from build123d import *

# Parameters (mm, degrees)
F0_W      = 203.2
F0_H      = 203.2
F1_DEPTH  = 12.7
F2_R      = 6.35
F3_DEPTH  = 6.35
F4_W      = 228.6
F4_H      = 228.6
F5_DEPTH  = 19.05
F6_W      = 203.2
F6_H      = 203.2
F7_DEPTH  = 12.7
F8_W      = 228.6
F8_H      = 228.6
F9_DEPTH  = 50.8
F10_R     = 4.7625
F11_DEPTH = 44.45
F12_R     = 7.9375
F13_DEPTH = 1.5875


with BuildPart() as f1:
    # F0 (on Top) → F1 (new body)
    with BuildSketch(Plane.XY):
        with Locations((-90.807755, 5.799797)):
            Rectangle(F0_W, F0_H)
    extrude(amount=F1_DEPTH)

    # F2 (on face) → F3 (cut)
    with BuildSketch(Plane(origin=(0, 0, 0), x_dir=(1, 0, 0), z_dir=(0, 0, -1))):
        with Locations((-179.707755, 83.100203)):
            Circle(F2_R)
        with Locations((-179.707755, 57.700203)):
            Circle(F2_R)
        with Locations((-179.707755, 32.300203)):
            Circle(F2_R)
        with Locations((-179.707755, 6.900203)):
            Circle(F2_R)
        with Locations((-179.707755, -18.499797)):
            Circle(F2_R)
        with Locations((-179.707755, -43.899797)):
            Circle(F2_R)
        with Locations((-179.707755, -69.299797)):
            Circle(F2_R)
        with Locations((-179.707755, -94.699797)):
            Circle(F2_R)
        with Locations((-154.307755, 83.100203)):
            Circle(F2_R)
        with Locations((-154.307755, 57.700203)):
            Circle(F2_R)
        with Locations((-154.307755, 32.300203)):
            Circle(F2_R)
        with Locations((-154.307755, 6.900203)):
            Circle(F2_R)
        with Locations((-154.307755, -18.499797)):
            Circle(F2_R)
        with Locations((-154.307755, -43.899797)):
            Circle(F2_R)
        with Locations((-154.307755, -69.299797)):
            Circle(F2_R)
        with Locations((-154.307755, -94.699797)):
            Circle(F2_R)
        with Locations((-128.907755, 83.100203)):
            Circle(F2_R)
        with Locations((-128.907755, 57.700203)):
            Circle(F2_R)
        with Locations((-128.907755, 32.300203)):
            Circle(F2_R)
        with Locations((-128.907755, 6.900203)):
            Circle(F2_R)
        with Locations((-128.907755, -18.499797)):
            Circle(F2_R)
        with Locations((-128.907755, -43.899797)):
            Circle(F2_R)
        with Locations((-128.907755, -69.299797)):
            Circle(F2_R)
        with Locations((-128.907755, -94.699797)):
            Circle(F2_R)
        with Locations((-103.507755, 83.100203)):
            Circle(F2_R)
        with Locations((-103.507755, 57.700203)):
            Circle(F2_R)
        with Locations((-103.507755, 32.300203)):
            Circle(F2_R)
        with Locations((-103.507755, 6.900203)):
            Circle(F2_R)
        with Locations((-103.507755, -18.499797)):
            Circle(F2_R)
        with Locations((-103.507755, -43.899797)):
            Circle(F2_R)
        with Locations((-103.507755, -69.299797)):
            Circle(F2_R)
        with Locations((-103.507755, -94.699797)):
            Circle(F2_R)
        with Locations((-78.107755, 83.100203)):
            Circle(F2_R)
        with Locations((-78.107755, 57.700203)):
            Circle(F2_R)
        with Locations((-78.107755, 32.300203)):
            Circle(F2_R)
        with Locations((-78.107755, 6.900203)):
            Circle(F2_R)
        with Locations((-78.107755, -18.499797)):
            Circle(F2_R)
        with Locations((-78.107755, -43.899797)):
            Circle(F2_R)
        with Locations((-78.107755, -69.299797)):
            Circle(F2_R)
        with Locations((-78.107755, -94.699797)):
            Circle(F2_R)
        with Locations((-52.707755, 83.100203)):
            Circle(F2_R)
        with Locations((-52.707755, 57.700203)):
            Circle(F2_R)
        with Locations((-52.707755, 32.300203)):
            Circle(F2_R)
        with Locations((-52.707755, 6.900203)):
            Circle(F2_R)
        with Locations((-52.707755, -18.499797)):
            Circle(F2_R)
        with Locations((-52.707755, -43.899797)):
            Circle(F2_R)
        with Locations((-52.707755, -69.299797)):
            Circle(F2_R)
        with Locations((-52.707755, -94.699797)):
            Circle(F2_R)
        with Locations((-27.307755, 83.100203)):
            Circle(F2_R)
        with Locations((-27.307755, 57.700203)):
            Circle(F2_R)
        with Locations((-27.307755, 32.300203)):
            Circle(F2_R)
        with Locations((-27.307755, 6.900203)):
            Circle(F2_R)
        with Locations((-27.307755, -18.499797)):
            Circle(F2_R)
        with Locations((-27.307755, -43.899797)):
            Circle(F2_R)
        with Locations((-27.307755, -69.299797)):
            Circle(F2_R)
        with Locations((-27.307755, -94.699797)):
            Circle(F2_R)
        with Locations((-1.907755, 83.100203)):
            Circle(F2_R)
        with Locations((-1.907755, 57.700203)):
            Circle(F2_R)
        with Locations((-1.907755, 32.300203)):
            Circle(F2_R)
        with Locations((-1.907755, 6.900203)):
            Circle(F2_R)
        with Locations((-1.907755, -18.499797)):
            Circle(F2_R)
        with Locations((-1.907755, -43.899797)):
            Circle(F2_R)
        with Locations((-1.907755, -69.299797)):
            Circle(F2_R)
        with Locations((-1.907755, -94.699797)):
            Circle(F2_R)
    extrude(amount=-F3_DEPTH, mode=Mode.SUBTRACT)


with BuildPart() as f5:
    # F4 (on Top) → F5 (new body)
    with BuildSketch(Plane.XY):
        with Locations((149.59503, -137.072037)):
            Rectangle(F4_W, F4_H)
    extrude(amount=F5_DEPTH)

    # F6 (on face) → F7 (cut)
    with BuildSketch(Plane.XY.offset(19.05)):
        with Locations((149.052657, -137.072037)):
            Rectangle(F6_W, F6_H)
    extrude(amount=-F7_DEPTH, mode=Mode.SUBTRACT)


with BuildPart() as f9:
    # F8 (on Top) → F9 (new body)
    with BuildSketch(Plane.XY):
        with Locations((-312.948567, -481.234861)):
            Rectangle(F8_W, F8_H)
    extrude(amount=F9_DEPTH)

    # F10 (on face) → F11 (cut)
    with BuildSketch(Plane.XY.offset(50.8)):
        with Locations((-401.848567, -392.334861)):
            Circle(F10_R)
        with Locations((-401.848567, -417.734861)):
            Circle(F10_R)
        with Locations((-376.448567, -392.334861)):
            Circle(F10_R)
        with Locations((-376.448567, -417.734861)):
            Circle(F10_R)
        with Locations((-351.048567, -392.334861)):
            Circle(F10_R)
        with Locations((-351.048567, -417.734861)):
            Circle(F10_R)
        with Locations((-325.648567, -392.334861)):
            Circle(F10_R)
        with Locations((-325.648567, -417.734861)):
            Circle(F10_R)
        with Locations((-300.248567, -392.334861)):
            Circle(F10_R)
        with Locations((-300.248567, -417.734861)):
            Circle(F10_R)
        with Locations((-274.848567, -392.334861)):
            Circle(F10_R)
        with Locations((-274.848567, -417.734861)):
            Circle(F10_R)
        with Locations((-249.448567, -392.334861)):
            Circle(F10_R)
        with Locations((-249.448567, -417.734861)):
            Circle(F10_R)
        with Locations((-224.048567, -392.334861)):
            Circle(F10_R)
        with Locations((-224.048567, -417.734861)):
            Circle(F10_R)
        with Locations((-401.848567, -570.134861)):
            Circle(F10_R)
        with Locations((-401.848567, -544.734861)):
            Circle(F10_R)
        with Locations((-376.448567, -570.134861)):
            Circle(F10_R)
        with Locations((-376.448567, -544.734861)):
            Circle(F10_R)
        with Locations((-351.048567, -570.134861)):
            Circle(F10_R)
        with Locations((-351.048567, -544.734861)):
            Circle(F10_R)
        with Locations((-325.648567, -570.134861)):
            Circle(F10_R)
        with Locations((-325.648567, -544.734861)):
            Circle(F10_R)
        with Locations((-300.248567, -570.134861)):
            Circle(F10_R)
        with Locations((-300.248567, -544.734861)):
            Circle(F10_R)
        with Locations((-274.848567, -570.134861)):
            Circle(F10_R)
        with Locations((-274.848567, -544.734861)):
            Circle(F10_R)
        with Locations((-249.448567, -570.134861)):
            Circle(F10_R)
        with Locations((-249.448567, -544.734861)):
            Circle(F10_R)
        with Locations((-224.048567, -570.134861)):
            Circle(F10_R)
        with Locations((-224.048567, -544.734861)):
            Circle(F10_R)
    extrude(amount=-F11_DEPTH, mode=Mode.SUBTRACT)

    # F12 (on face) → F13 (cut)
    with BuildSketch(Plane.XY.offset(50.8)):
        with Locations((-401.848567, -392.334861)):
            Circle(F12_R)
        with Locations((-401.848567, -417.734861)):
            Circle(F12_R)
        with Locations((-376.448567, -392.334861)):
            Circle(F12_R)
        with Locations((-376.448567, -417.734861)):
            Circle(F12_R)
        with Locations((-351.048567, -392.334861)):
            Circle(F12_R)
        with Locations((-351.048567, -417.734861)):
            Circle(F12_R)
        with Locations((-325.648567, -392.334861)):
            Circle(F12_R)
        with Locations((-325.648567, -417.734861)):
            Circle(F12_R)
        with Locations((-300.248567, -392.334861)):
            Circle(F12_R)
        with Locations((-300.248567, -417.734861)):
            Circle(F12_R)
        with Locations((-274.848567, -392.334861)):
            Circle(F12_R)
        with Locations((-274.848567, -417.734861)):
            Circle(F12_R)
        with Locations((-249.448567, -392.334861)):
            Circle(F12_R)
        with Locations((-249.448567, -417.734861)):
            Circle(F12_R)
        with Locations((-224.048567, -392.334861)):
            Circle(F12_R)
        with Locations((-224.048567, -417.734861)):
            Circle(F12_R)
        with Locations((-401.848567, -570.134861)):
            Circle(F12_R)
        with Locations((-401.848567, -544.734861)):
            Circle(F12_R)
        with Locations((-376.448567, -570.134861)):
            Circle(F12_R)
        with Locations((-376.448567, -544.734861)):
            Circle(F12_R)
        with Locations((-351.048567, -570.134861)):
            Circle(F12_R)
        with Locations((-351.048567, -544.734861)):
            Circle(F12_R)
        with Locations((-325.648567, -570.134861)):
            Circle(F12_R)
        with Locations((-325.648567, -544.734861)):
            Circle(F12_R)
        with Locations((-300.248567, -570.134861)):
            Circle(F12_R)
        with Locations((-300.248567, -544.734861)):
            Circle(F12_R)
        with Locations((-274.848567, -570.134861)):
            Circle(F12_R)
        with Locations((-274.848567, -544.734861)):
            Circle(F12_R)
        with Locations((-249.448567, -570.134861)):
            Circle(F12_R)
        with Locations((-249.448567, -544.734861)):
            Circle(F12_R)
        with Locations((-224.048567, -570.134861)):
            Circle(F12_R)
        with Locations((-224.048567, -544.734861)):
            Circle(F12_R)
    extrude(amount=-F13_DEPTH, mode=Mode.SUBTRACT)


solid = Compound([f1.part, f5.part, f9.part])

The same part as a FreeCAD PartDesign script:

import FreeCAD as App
import Part
import Sketcher
Q = App.Units.Quantity

doc = App.newDocument("Part")
body = doc.addObject("PartDesign::Body", "Body")

sketch1 = doc.addObject("Sketcher::SketchObject", "Sketch")
body.addObject(sketch1)
sketch1.AttachmentSupport = (doc.XY_Plane, [""])
sketch1.MapMode = "FlatFace"
sketch1.addGeometry([
    Part.LineSegment(App.Vector(-192.407755, 107.399797, 0), App.Vector(-192.407755, -95.800203, 0)),
    Part.LineSegment(App.Vector(-192.407755, -95.800203, 0), App.Vector(10.792245, -95.800203, 0)),
    Part.LineSegment(App.Vector(10.792245, -95.800203, 0), App.Vector(10.792245, 107.399797, 0)),
    Part.LineSegment(App.Vector(10.792245, 107.399797, 0), App.Vector(-192.407755, 107.399797, 0)),
], False)
sketch1.addConstraint([
    Sketcher.Constraint("Coincident", 0, 2, 1, 1),
    Sketcher.Constraint("Coincident", 1, 2, 2, 1),
    Sketcher.Constraint("Coincident", 2, 2, 3, 1),
    Sketcher.Constraint("Coincident", 3, 2, 0, 1),
    Sketcher.Constraint("Vertical", 0),
    Sketcher.Constraint("Horizontal", 1),
    Sketcher.Constraint("Vertical", 2),
    Sketcher.Constraint("Horizontal", 3),
    Sketcher.Constraint("Equal", 3, 0),
    Sketcher.Constraint("DistanceX", 1, 1, 1, 2, Q("8 in")),
    Sketcher.Constraint("DistanceX", 0, 2, -1, 1, 192.407755),
    Sketcher.Constraint("DistanceY", 0, 2, -1, 1, 95.800203),
])
pad1 = doc.addObject("PartDesign::Pad", "Pad")
body.addObject(pad1)
pad1.Profile = sketch1
pad1.Length = Q("0.5 in")

sketch2 = doc.addObject("Sketcher::SketchObject", "Sketch001")
body.addObject(sketch2)
sketch2.AttachmentSupport = (doc.XY_Plane, [""])
sketch2.MapMode = "FlatFace"
sketch2.addGeometry([
    Part.Circle(App.Vector(-179.707755, -83.100203, 0), App.Vector(0, 0, 1), 6.35),
    Part.Circle(App.Vector(-179.707755, -57.700203, 0), App.Vector(0, 0, 1), 6.35),
    Part.Circle(App.Vector(-179.707755, -32.300203, 0), App.Vector(0, 0, 1), 6.35),
    Part.Circle(App.Vector(-179.707755, -6.900203, 0), App.Vector(0, 0, 1), 6.35),
    Part.Circle(App.Vector(-179.707755, 18.499797, 0), App.Vector(0, 0, 1), 6.35),
    Part.Circle(App.Vector(-179.707755, 43.899797, 0), App.Vector(0, 0, 1), 6.35),
    Part.Circle(App.Vector(-179.707755, 69.299797, 0), App.Vector(0, 0, 1), 6.35),
    Part.Circle(App.Vector(-179.707755, 94.699797, 0), App.Vector(0, 0, 1), 6.35),
    Part.Circle(App.Vector(-154.307755, -83.100203, 0), App.Vector(0, 0, 1), 6.35),
    Part.Circle(App.Vector(-154.307755, -57.700203, 0), App.Vector(0, 0, 1), 6.35),
    Part.Circle(App.Vector(-154.307755, -32.300203, 0), App.Vector(0, 0, 1), 6.35),
    Part.Circle(App.Vector(-154.307755, -6.900203, 0), App.Vector(0, 0, 1), 6.35),
    Part.Circle(App.Vector(-154.307755, 18.499797, 0), App.Vector(0, 0, 1), 6.35),
    Part.Circle(App.Vector(-154.307755, 43.899797, 0), App.Vector(0, 0, 1), 6.35),
    Part.Circle(App.Vector(-154.307755, 69.299797, 0), App.Vector(0, 0, 1), 6.35),
    Part.Circle(App.Vector(-154.307755, 94.699797, 0), App.Vector(0, 0, 1), 6.35),
    Part.Circle(App.Vector(-128.907755, -83.100203, 0), App.Vector(0, 0, 1), 6.35),
    Part.Circle(App.Vector(-128.907755, -57.700203, 0), App.Vector(0, 0, 1), 6.35),
    Part.Circle(App.Vector(-128.907755, -32.300203, 0), App.Vector(0, 0, 1), 6.35),
    Part.Circle(App.Vector(-128.907755, -6.900203, 0), App.Vector(0, 0, 1), 6.35),
    Part.Circle(App.Vector(-128.907755, 18.499797, 0), App.Vector(0, 0, 1), 6.35),
    Part.Circle(App.Vector(-128.907755, 43.899797, 0), App.Vector(0, 0, 1), 6.35),
    Part.Circle(App.Vector(-128.907755, 69.299797, 0), App.Vector(0, 0, 1), 6.35),
    Part.Circle(App.Vector(-128.907755, 94.699797, 0), App.Vector(0, 0, 1), 6.35),
    Part.Circle(App.Vector(-103.507755, -83.100203, 0), App.Vector(0, 0, 1), 6.35),
    Part.Circle(App.Vector(-103.507755, -57.700203, 0), App.Vector(0, 0, 1), 6.35),
    Part.Circle(App.Vector(-103.507755, -32.300203, 0), App.Vector(0, 0, 1), 6.35),
    Part.Circle(App.Vector(-103.507755, -6.900203, 0), App.Vector(0, 0, 1), 6.35),
    Part.Circle(App.Vector(-103.507755, 18.499797, 0), App.Vector(0, 0, 1), 6.35),
    Part.Circle(App.Vector(-103.507755, 43.899797, 0), App.Vector(0, 0, 1), 6.35),
    Part.Circle(App.Vector(-103.507755, 69.299797, 0), App.Vector(0, 0, 1), 6.35),
    Part.Circle(App.Vector(-103.507755, 94.699797, 0), App.Vector(0, 0, 1), 6.35),
    Part.Circle(App.Vector(-78.107755, -83.100203, 0), App.Vector(0, 0, 1), 6.35),
    Part.Circle(App.Vector(-78.107755, -57.700203, 0), App.Vector(0, 0, 1), 6.35),
    Part.Circle(App.Vector(-78.107755, -32.300203, 0), App.Vector(0, 0, 1), 6.35),
    Part.Circle(App.Vector(-78.107755, -6.900203, 0), App.Vector(0, 0, 1), 6.35),
    Part.Circle(App.Vector(-78.107755, 18.499797, 0), App.Vector(0, 0, 1), 6.35),
    Part.Circle(App.Vector(-78.107755, 43.899797, 0), App.Vector(0, 0, 1), 6.35),
    Part.Circle(App.Vector(-78.107755, 69.299797, 0), App.Vector(0, 0, 1), 6.35),
    Part.Circle(App.Vector(-78.107755, 94.699797, 0), App.Vector(0, 0, 1), 6.35),
    Part.Circle(App.Vector(-52.707755, -83.100203, 0), App.Vector(0, 0, 1), 6.35),
    Part.Circle(App.Vector(-52.707755, -57.700203, 0), App.Vector(0, 0, 1), 6.35),
    Part.Circle(App.Vector(-52.707755, -32.300203, 0), App.Vector(0, 0, 1), 6.35),
    Part.Circle(App.Vector(-52.707755, -6.900203, 0), App.Vector(0, 0, 1), 6.35),
    Part.Circle(App.Vector(-52.707755, 18.499797, 0), App.Vector(0, 0, 1), 6.35),
    Part.Circle(App.Vector(-52.707755, 43.899797, 0), App.Vector(0, 0, 1), 6.35),
    Part.Circle(App.Vector(-52.707755, 69.299797, 0), App.Vector(0, 0, 1), 6.35),
    Part.Circle(App.Vector(-52.707755, 94.699797, 0), App.Vector(0, 0, 1), 6.35),
    Part.Circle(App.Vector(-27.307755, -83.100203, 0), App.Vector(0, 0, 1), 6.35),
    Part.Circle(App.Vector(-27.307755, -57.700203, 0), App.Vector(0, 0, 1), 6.35),
    Part.Circle(App.Vector(-27.307755, -32.300203, 0), App.Vector(0, 0, 1), 6.35),
    Part.Circle(App.Vector(-27.307755, -6.900203, 0), App.Vector(0, 0, 1), 6.35),
    Part.Circle(App.Vector(-27.307755, 18.499797, 0), App.Vector(0, 0, 1), 6.35),
    Part.Circle(App.Vector(-27.307755, 43.899797, 0), App.Vector(0, 0, 1), 6.35),
    Part.Circle(App.Vector(-27.307755, 69.299797, 0), App.Vector(0, 0, 1), 6.35),
    Part.Circle(App.Vector(-27.307755, 94.699797, 0), App.Vector(0, 0, 1), 6.35),
    Part.Circle(App.Vector(-1.907755, -83.100203, 0), App.Vector(0, 0, 1), 6.35),
    Part.Circle(App.Vector(-1.907755, -57.700203, 0), App.Vector(0, 0, 1), 6.35),
    Part.Circle(App.Vector(-1.907755, -32.300203, 0), App.Vector(0, 0, 1), 6.35),
    Part.Circle(App.Vector(-1.907755, -6.900203, 0), App.Vector(0, 0, 1), 6.35),
    Part.Circle(App.Vector(-1.907755, 18.499797, 0), App.Vector(0, 0, 1), 6.35),
    Part.Circle(App.Vector(-1.907755, 43.899797, 0), App.Vector(0, 0, 1), 6.35),
    Part.Circle(App.Vector(-1.907755, 69.299797, 0), App.Vector(0, 0, 1), 6.35),
    Part.Circle(App.Vector(-1.907755, 94.699797, 0), App.Vector(0, 0, 1), 6.35),
], False)
sketch2.addConstraint([
    Sketcher.Constraint("Equal", 0, 1),
    Sketcher.Constraint("Equal", 1, 2),
    Sketcher.Constraint("Equal", 2, 3),
    Sketcher.Constraint("Equal", 3, 4),
    Sketcher.Constraint("Equal", 4, 5),
    Sketcher.Constraint("Equal", 5, 6),
    Sketcher.Constraint("Equal", 6, 7),
    Sketcher.Constraint("Equal", 7, 8),
    Sketcher.Constraint("Equal", 8, 9),
    Sketcher.Constraint("Equal", 9, 10),
    Sketcher.Constraint("Equal", 10, 11),
    Sketcher.Constraint("Equal", 11, 12),
    Sketcher.Constraint("Equal", 12, 13),
    Sketcher.Constraint("Equal", 13, 14),
    Sketcher.Constraint("Equal", 14, 15),
    Sketcher.Constraint("Equal", 15, 16),
    Sketcher.Constraint("Equal", 16, 17),
    Sketcher.Constraint("Equal", 17, 18),
    Sketcher.Constraint("Equal", 18, 19),
    Sketcher.Constraint("Equal", 19, 20),
    Sketcher.Constraint("Equal", 20, 21),
    Sketcher.Constraint("Equal", 21, 22),
    Sketcher.Constraint("Equal", 22, 23),
    Sketcher.Constraint("Equal", 23, 24),
    Sketcher.Constraint("Equal", 24, 25),
    Sketcher.Constraint("Equal", 25, 26),
    Sketcher.Constraint("Equal", 26, 27),
    Sketcher.Constraint("Equal", 27, 28),
    Sketcher.Constraint("Equal", 28, 29),
    Sketcher.Constraint("Equal", 29, 30),
    Sketcher.Constraint("Equal", 30, 31),
    Sketcher.Constraint("Equal", 31, 32),
    Sketcher.Constraint("Equal", 32, 33),
    Sketcher.Constraint("Equal", 33, 34),
    Sketcher.Constraint("Equal", 34, 35),
    Sketcher.Constraint("Equal", 35, 36),
    Sketcher.Constraint("Equal", 36, 37),
    Sketcher.Constraint("Equal", 37, 38),
    Sketcher.Constraint("Equal", 38, 39),
    Sketcher.Constraint("Equal", 39, 40),
    Sketcher.Constraint("Equal", 40, 41),
    Sketcher.Constraint("Equal", 41, 42),
    Sketcher.Constraint("Equal", 42, 43),
    Sketcher.Constraint("Equal", 43, 44),
    Sketcher.Constraint("Equal", 44, 45),
    Sketcher.Constraint("Equal", 45, 46),
    Sketcher.Constraint("Equal", 46, 47),
    Sketcher.Constraint("Equal", 47, 48),
    Sketcher.Constraint("Equal", 48, 49),
    Sketcher.Constraint("Equal", 49, 50),
    Sketcher.Constraint("Equal", 50, 51),
    Sketcher.Constraint("Equal", 51, 52),
    Sketcher.Constraint("Equal", 52, 53),
    Sketcher.Constraint("Equal", 53, 54),
    Sketcher.Constraint("Equal", 54, 55),
    Sketcher.Constraint("Equal", 55, 56),
    Sketcher.Constraint("Equal", 56, 57),
    Sketcher.Constraint("Equal", 57, 58),
    Sketcher.Constraint("Equal", 58, 59),
    Sketcher.Constraint("Equal", 59, 60),
    Sketcher.Constraint("Equal", 60, 61),
    Sketcher.Constraint("Equal", 61, 62),
    Sketcher.Constraint("Equal", 62, 63),
    Sketcher.Constraint("Horizontal", 0, 3, 8, 3),
    Sketcher.Constraint("Horizontal", 1, 3, 9, 3),
    Sketcher.Constraint("Horizontal", 2, 3, 10, 3),
    Sketcher.Constraint("Horizontal", 3, 3, 11, 3),
    Sketcher.Constraint("Horizontal", 4, 3, 12, 3),
    Sketcher.Constraint("Horizontal", 5, 3, 13, 3),
    Sketcher.Constraint("Horizontal", 6, 3, 14, 3),
    Sketcher.Constraint("Horizontal", 7, 3, 15, 3),
    Sketcher.Constraint("Horizontal", 8, 3, 16, 3),
    Sketcher.Constraint("Horizontal", 9, 3, 17, 3),
    Sketcher.Constraint("Horizontal", 10, 3, 18, 3),
    Sketcher.Constraint("Horizontal", 11, 3, 19, 3),
    Sketcher.Constraint("Horizontal", 12, 3, 20, 3),
    Sketcher.Constraint("Horizontal", 13, 3, 21, 3),
    Sketcher.Constraint("Horizontal", 14, 3, 22, 3),
    Sketcher.Constraint("Horizontal", 15, 3, 23, 3),
    Sketcher.Constraint("Horizontal", 16, 3, 24, 3),
    Sketcher.Constraint("Horizontal", 17, 3, 25, 3),
    Sketcher.Constraint("Horizontal", 18, 3, 26, 3),
    Sketcher.Constraint("Horizontal", 19, 3, 27, 3),
    Sketcher.Constraint("Horizontal", 20, 3, 28, 3),
    Sketcher.Constraint("Horizontal", 21, 3, 29, 3),
    Sketcher.Constraint("Horizontal", 22, 3, 30, 3),
    Sketcher.Constraint("Horizontal", 23, 3, 31, 3),
    Sketcher.Constraint("Horizontal", 24, 3, 32, 3),
    Sketcher.Constraint("Horizontal", 25, 3, 33, 3),
    Sketcher.Constraint("Horizontal", 26, 3, 34, 3),
    Sketcher.Constraint("Horizontal", 27, 3, 35, 3),
    Sketcher.Constraint("Horizontal", 28, 3, 36, 3),
    Sketcher.Constraint("Horizontal", 29, 3, 37, 3),
    Sketcher.Constraint("Horizontal", 30, 3, 38, 3),
    Sketcher.Constraint("Horizontal", 31, 3, 39, 3),
    Sketcher.Constraint("Horizontal", 32, 3, 40, 3),
    Sketcher.Constraint("Horizontal", 33, 3, 41, 3),
    Sketcher.Constraint("Horizontal", 34, 3, 42, 3),
    Sketcher.Constraint("Horizontal", 35, 3, 43, 3),
    Sketcher.Constraint("Horizontal", 36, 3, 44, 3),
    Sketcher.Constraint("Horizontal", 37, 3, 45, 3),
    Sketcher.Constraint("Horizontal", 38, 3, 46, 3),
    Sketcher.Constraint("Horizontal", 39, 3, 47, 3),
    Sketcher.Constraint("Horizontal", 40, 3, 48, 3),
    Sketcher.Constraint("Horizontal", 41, 3, 49, 3),
    Sketcher.Constraint("Horizontal", 42, 3, 50, 3),
    Sketcher.Constraint("Horizontal", 43, 3, 51, 3),
    Sketcher.Constraint("Horizontal", 44, 3, 52, 3),
    Sketcher.Constraint("Horizontal", 45, 3, 53, 3),
    Sketcher.Constraint("Horizontal", 46, 3, 54, 3),
    Sketcher.Constraint("Horizontal", 47, 3, 55, 3),
    Sketcher.Constraint("Horizontal", 48, 3, 56, 3),
    Sketcher.Constraint("Horizontal", 49, 3, 57, 3),
    Sketcher.Constraint("Horizontal", 50, 3, 58, 3),
    Sketcher.Constraint("Horizontal", 51, 3, 59, 3),
    Sketcher.Constraint("Horizontal", 52, 3, 60, 3),
    Sketcher.Constraint("Horizontal", 53, 3, 61, 3),
    Sketcher.Constraint("Horizontal", 54, 3, 62, 3),
    Sketcher.Constraint("Horizontal", 55, 3, 63, 3),
    Sketcher.Constraint("Vertical", 0, 3, 1, 3),
    Sketcher.Constraint("Vertical", 1, 3, 2, 3),
    Sketcher.Constraint("Vertical", 2, 3, 3, 3),
    Sketcher.Constraint("Vertical", 3, 3, 4, 3),
    Sketcher.Constraint("Vertical", 4, 3, 5, 3),
    Sketcher.Constraint("Vertical", 5, 3, 6, 3),
    Sketcher.Constraint("Vertical", 6, 3, 7, 3),
    Sketcher.Constraint("Vertical", 8, 3, 9, 3),
    Sketcher.Constraint("Vertical", 9, 3, 10, 3),
    Sketcher.Constraint("Vertical", 10, 3, 11, 3),
    Sketcher.Constraint("Vertical", 11, 3, 12, 3),
    Sketcher.Constraint("Vertical", 12, 3, 13, 3),
    Sketcher.Constraint("Vertical", 13, 3, 14, 3),
    Sketcher.Constraint("Vertical", 14, 3, 15, 3),
    Sketcher.Constraint("Vertical", 16, 3, 17, 3),
    Sketcher.Constraint("Vertical", 17, 3, 18, 3),
    Sketcher.Constraint("Vertical", 18, 3, 19, 3),
    Sketcher.Constraint("Vertical", 19, 3, 20, 3),
    Sketcher.Constraint("Vertical", 20, 3, 21, 3),
    Sketcher.Constraint("Vertical", 21, 3, 22, 3),
    Sketcher.Constraint("Vertical", 22, 3, 23, 3),
    Sketcher.Constraint("Vertical", 24, 3, 25, 3),
    Sketcher.Constraint("Vertical", 25, 3, 26, 3),
    Sketcher.Constraint("Vertical", 26, 3, 27, 3),
    Sketcher.Constraint("Vertical", 27, 3, 28, 3),
    Sketcher.Constraint("Vertical", 28, 3, 29, 3),
    Sketcher.Constraint("Vertical", 29, 3, 30, 3),
    Sketcher.Constraint("Vertical", 30, 3, 31, 3),
    Sketcher.Constraint("Vertical", 32, 3, 33, 3),
    Sketcher.Constraint("Vertical", 33, 3, 34, 3),
    Sketcher.Constraint("Vertical", 34, 3, 35, 3),
    Sketcher.Constraint("Vertical", 35, 3, 36, 3),
    Sketcher.Constraint("Vertical", 36, 3, 37, 3),
    Sketcher.Constraint("Vertical", 37, 3, 38, 3),
    Sketcher.Constraint("Vertical", 38, 3, 39, 3),
    Sketcher.Constraint("Vertical", 40, 3, 41, 3),
    Sketcher.Constraint("Vertical", 41, 3, 42, 3),
    Sketcher.Constraint("Vertical", 42, 3, 43, 3),
    Sketcher.Constraint("Vertical", 43, 3, 44, 3),
    Sketcher.Constraint("Vertical", 44, 3, 45, 3),
    Sketcher.Constraint("Vertical", 45, 3, 46, 3),
    Sketcher.Constraint("Vertical", 46, 3, 47, 3),
    Sketcher.Constraint("Vertical", 48, 3, 49, 3),
    Sketcher.Constraint("Vertical", 49, 3, 50, 3),
    Sketcher.Constraint("Vertical", 50, 3, 51, 3),
    Sketcher.Constraint("Vertical", 51, 3, 52, 3),
    Sketcher.Constraint("Vertical", 52, 3, 53, 3),
    Sketcher.Constraint("Vertical", 53, 3, 54, 3),
    Sketcher.Constraint("Vertical", 54, 3, 55, 3),
    Sketcher.Constraint("Vertical", 56, 3, 57, 3),
    Sketcher.Constraint("Vertical", 57, 3, 58, 3),
    Sketcher.Constraint("Vertical", 58, 3, 59, 3),
    Sketcher.Constraint("Vertical", 59, 3, 60, 3),
    Sketcher.Constraint("Vertical", 60, 3, 61, 3),
    Sketcher.Constraint("Vertical", 61, 3, 62, 3),
    Sketcher.Constraint("Vertical", 62, 3, 63, 3),
    Sketcher.Constraint("Diameter", 0, Q("0.5 in")),
    Sketcher.Constraint("DistanceX", 0, 3, -1, 1, 179.707755),
    Sketcher.Constraint("DistanceY", 0, 3, -1, 1, 83.100203),
    Sketcher.Constraint("DistanceY", 1, 3, -1, 1, 57.700203),
    Sketcher.Constraint("DistanceY", 2, 3, -1, 1, 32.300203),
    Sketcher.Constraint("DistanceY", 3, 3, -1, 1, 6.900203),
    Sketcher.Constraint("DistanceY", -1, 1, 4, 3, 18.499797),
    Sketcher.Constraint("DistanceY", -1, 1, 5, 3, 43.899797),
    Sketcher.Constraint("DistanceY", -1, 1, 6, 3, 69.299797),
    Sketcher.Constraint("DistanceY", -1, 1, 7, 3, 94.699797),
    Sketcher.Constraint("DistanceX", 8, 3, -1, 1, 154.307755),
    Sketcher.Constraint("DistanceX", 16, 3, -1, 1, 128.907755),
    Sketcher.Constraint("DistanceX", 24, 3, -1, 1, 103.507755),
    Sketcher.Constraint("DistanceX", 32, 3, -1, 1, 78.107755),
    Sketcher.Constraint("DistanceX", 40, 3, -1, 1, 52.707755),
    Sketcher.Constraint("DistanceX", 48, 3, -1, 1, 27.307755),
    Sketcher.Constraint("DistanceX", 56, 3, -1, 1, 1.907755),
])
pocket1 = doc.addObject("PartDesign::Pocket", "Pocket")
body.addObject(pocket1)
pocket1.Profile = sketch2
pocket1.Length = Q("0.25 in")
pocket1.Reversed = True
body2 = doc.addObject("PartDesign::Body", "Body001")

sketch3 = doc.addObject("Sketcher::SketchObject", "Sketch002")
body2.addObject(sketch3)
sketch3.AttachmentSupport = (doc.getObject("XY_Plane001"), [""])
sketch3.MapMode = "FlatFace"
sketch3.addGeometry([
    Part.LineSegment(App.Vector(35.29503, -22.772037, 0), App.Vector(35.29503, -251.372037, 0)),
    Part.LineSegment(App.Vector(35.29503, -251.372037, 0), App.Vector(263.89503, -251.372037, 0)),
    Part.LineSegment(App.Vector(263.89503, -251.372037, 0), App.Vector(263.89503, -22.772037, 0)),
    Part.LineSegment(App.Vector(263.89503, -22.772037, 0), App.Vector(35.29503, -22.772037, 0)),
], False)
sketch3.addConstraint([
    Sketcher.Constraint("Coincident", 0, 2, 1, 1),
    Sketcher.Constraint("Coincident", 1, 2, 2, 1),
    Sketcher.Constraint("Coincident", 2, 2, 3, 1),
    Sketcher.Constraint("Coincident", 3, 2, 0, 1),
    Sketcher.Constraint("Vertical", 0),
    Sketcher.Constraint("Horizontal", 1),
    Sketcher.Constraint("Vertical", 2),
    Sketcher.Constraint("Horizontal", 3),
    Sketcher.Constraint("Equal", 3, 0),
    Sketcher.Constraint("DistanceX", 1, 1, 1, 2, Q("9 in")),
    Sketcher.Constraint("DistanceX", -1, 1, 0, 2, 35.29503),
    Sketcher.Constraint("DistanceY", 0, 2, -1, 1, 251.372037),
])
pad2 = doc.addObject("PartDesign::Pad", "Pad001")
body2.addObject(pad2)
pad2.Profile = sketch3
pad2.Length = Q("0.75 in")

sketch4 = doc.addObject("Sketcher::SketchObject", "Sketch003")
body2.addObject(sketch4)
sketch4.AttachmentSupport = (doc.getObject("XY_Plane001"), [""])
sketch4.MapMode = "FlatFace"
sketch4.AttachmentOffset = App.Placement(App.Vector(0, 0, 0.75 * 25.4), App.Rotation())
sketch4.addGeometry([
    Part.LineSegment(App.Vector(47.452657, -35.472037, 0), App.Vector(47.452657, -238.672037, 0)),
    Part.LineSegment(App.Vector(47.452657, -238.672037, 0), App.Vector(250.652657, -238.672037, 0)),
    Part.LineSegment(App.Vector(250.652657, -238.672037, 0), App.Vector(250.652657, -35.472037, 0)),
    Part.LineSegment(App.Vector(250.652657, -35.472037, 0), App.Vector(47.452657, -35.472037, 0)),
], False)
sketch4.addConstraint([
    Sketcher.Constraint("Coincident", 0, 2, 1, 1),
    Sketcher.Constraint("Coincident", 1, 2, 2, 1),
    Sketcher.Constraint("Coincident", 2, 2, 3, 1),
    Sketcher.Constraint("Coincident", 3, 2, 0, 1),
    Sketcher.Constraint("Vertical", 0),
    Sketcher.Constraint("Horizontal", 1),
    Sketcher.Constraint("Vertical", 2),
    Sketcher.Constraint("Horizontal", 3),
    Sketcher.Constraint("Equal", 3, 0),
    Sketcher.Constraint("DistanceX", 1, 1, 1, 2, Q("8 in")),
    Sketcher.Constraint("DistanceX", -1, 1, 0, 2, 47.452657),
    Sketcher.Constraint("DistanceY", 0, 2, -1, 1, 238.672037),
])
pocket2 = doc.addObject("PartDesign::Pocket", "Pocket001")
body2.addObject(pocket2)
pocket2.Profile = sketch4
pocket2.Length = Q("0.5 in")
body3 = doc.addObject("PartDesign::Body", "Body002")

sketch5 = doc.addObject("Sketcher::SketchObject", "Sketch004")
body3.addObject(sketch5)
sketch5.AttachmentSupport = (doc.getObject("XY_Plane002"), [""])
sketch5.MapMode = "FlatFace"
sketch5.addGeometry([
    Part.LineSegment(App.Vector(-427.248567, -366.934861, 0), App.Vector(-427.248567, -595.534861, 0)),
    Part.LineSegment(App.Vector(-427.248567, -595.534861, 0), App.Vector(-198.648567, -595.534861, 0)),
    Part.LineSegment(App.Vector(-198.648567, -595.534861, 0), App.Vector(-198.648567, -366.934861, 0)),
    Part.LineSegment(App.Vector(-198.648567, -366.934861, 0), App.Vector(-427.248567, -366.934861, 0)),
], False)
sketch5.addConstraint([
    Sketcher.Constraint("Coincident", 0, 2, 1, 1),
    Sketcher.Constraint("Coincident", 1, 2, 2, 1),
    Sketcher.Constraint("Coincident", 2, 2, 3, 1),
    Sketcher.Constraint("Coincident", 3, 2, 0, 1),
    Sketcher.Constraint("Vertical", 0),
    Sketcher.Constraint("Horizontal", 1),
    Sketcher.Constraint("Vertical", 2),
    Sketcher.Constraint("Horizontal", 3),
    Sketcher.Constraint("Equal", 3, 0),
    Sketcher.Constraint("DistanceX", 1, 1, 1, 2, Q("9 in")),
    Sketcher.Constraint("DistanceY", 0, 2, -1, 1, 595.534861),
    Sketcher.Constraint("DistanceX", 0, 2, -1, 1, 427.248567),
])
pad3 = doc.addObject("PartDesign::Pad", "Pad002")
body3.addObject(pad3)
pad3.Profile = sketch5
pad3.Length = Q("2 in")

sketch6 = doc.addObject("Sketcher::SketchObject", "Sketch005")
body3.addObject(sketch6)
sketch6.AttachmentSupport = (doc.getObject("XY_Plane002"), [""])
sketch6.MapMode = "FlatFace"
sketch6.AttachmentOffset = App.Placement(App.Vector(0, 0, 2 * 25.4), App.Rotation())
sketch6.addGeometry([
    Part.Circle(App.Vector(-401.848567, -392.334861, 0), App.Vector(0, 0, 1), 4.7625),
    Part.Circle(App.Vector(-401.848567, -417.734861, 0), App.Vector(0, 0, 1), 4.7625),
    Part.Circle(App.Vector(-376.448567, -392.334861, 0), App.Vector(0, 0, 1), 4.7625),
    Part.Circle(App.Vector(-376.448567, -417.734861, 0), App.Vector(0, 0, 1), 4.7625),
    Part.Circle(App.Vector(-351.048567, -392.334861, 0), App.Vector(0, 0, 1), 4.7625),
    Part.Circle(App.Vector(-351.048567, -417.734861, 0), App.Vector(0, 0, 1), 4.7625),
    Part.Circle(App.Vector(-325.648567, -392.334861, 0), App.Vector(0, 0, 1), 4.7625),
    Part.Circle(App.Vector(-325.648567, -417.734861, 0), App.Vector(0, 0, 1), 4.7625),
    Part.Circle(App.Vector(-300.248567, -392.334861, 0), App.Vector(0, 0, 1), 4.7625),
    Part.Circle(App.Vector(-300.248567, -417.734861, 0), App.Vector(0, 0, 1), 4.7625),
    Part.Circle(App.Vector(-274.848567, -392.334861, 0), App.Vector(0, 0, 1), 4.7625),
    Part.Circle(App.Vector(-274.848567, -417.734861, 0), App.Vector(0, 0, 1), 4.7625),
    Part.Circle(App.Vector(-249.448567, -392.334861, 0), App.Vector(0, 0, 1), 4.7625),
    Part.Circle(App.Vector(-249.448567, -417.734861, 0), App.Vector(0, 0, 1), 4.7625),
    Part.Circle(App.Vector(-224.048567, -392.334861, 0), App.Vector(0, 0, 1), 4.7625),
    Part.Circle(App.Vector(-224.048567, -417.734861, 0), App.Vector(0, 0, 1), 4.7625),
    Part.Circle(App.Vector(-401.848567, -570.134861, 0), App.Vector(0, 0, 1), 4.7625),
    Part.Circle(App.Vector(-401.848567, -544.734861, 0), App.Vector(0, 0, 1), 4.7625),
    Part.Circle(App.Vector(-376.448567, -570.134861, 0), App.Vector(0, 0, 1), 4.7625),
    Part.Circle(App.Vector(-376.448567, -544.734861, 0), App.Vector(0, 0, 1), 4.7625),
    Part.Circle(App.Vector(-351.048567, -570.134861, 0), App.Vector(0, 0, 1), 4.7625),
    Part.Circle(App.Vector(-351.048567, -544.734861, 0), App.Vector(0, 0, 1), 4.7625),
    Part.Circle(App.Vector(-325.648567, -570.134861, 0), App.Vector(0, 0, 1), 4.7625),
    Part.Circle(App.Vector(-325.648567, -544.734861, 0), App.Vector(0, 0, 1), 4.7625),
    Part.Circle(App.Vector(-300.248567, -570.134861, 0), App.Vector(0, 0, 1), 4.7625),
    Part.Circle(App.Vector(-300.248567, -544.734861, 0), App.Vector(0, 0, 1), 4.7625),
    Part.Circle(App.Vector(-274.848567, -570.134861, 0), App.Vector(0, 0, 1), 4.7625),
    Part.Circle(App.Vector(-274.848567, -544.734861, 0), App.Vector(0, 0, 1), 4.7625),
    Part.Circle(App.Vector(-249.448567, -570.134861, 0), App.Vector(0, 0, 1), 4.7625),
    Part.Circle(App.Vector(-249.448567, -544.734861, 0), App.Vector(0, 0, 1), 4.7625),
    Part.Circle(App.Vector(-224.048567, -570.134861, 0), App.Vector(0, 0, 1), 4.7625),
    Part.Circle(App.Vector(-224.048567, -544.734861, 0), App.Vector(0, 0, 1), 4.7625),
], False)
sketch6.addConstraint([
    Sketcher.Constraint("Equal", 0, 1),
    Sketcher.Constraint("Equal", 1, 2),
    Sketcher.Constraint("Equal", 2, 3),
    Sketcher.Constraint("Equal", 3, 4),
    Sketcher.Constraint("Equal", 4, 5),
    Sketcher.Constraint("Equal", 5, 6),
    Sketcher.Constraint("Equal", 6, 7),
    Sketcher.Constraint("Equal", 7, 8),
    Sketcher.Constraint("Equal", 8, 9),
    Sketcher.Constraint("Equal", 9, 10),
    Sketcher.Constraint("Equal", 10, 11),
    Sketcher.Constraint("Equal", 11, 12),
    Sketcher.Constraint("Equal", 12, 13),
    Sketcher.Constraint("Equal", 13, 14),
    Sketcher.Constraint("Equal", 14, 15),
    Sketcher.Constraint("Equal", 15, 16),
    Sketcher.Constraint("Equal", 16, 17),
    Sketcher.Constraint("Equal", 17, 18),
    Sketcher.Constraint("Equal", 18, 19),
    Sketcher.Constraint("Equal", 19, 20),
    Sketcher.Constraint("Equal", 20, 21),
    Sketcher.Constraint("Equal", 21, 22),
    Sketcher.Constraint("Equal", 22, 23),
    Sketcher.Constraint("Equal", 23, 24),
    Sketcher.Constraint("Equal", 24, 25),
    Sketcher.Constraint("Equal", 25, 26),
    Sketcher.Constraint("Equal", 26, 27),
    Sketcher.Constraint("Equal", 27, 28),
    Sketcher.Constraint("Equal", 28, 29),
    Sketcher.Constraint("Equal", 29, 30),
    Sketcher.Constraint("Equal", 30, 31),
    Sketcher.Constraint("Horizontal", 0, 3, 2, 3),
    Sketcher.Constraint("Horizontal", 1, 3, 3, 3),
    Sketcher.Constraint("Horizontal", 2, 3, 4, 3),
    Sketcher.Constraint("Horizontal", 3, 3, 5, 3),
    Sketcher.Constraint("Horizontal", 4, 3, 6, 3),
    Sketcher.Constraint("Horizontal", 5, 3, 7, 3),
    Sketcher.Constraint("Horizontal", 6, 3, 8, 3),
    Sketcher.Constraint("Horizontal", 7, 3, 9, 3),
    Sketcher.Constraint("Horizontal", 8, 3, 10, 3),
    Sketcher.Constraint("Horizontal", 9, 3, 11, 3),
    Sketcher.Constraint("Horizontal", 10, 3, 12, 3),
    Sketcher.Constraint("Horizontal", 11, 3, 13, 3),
    Sketcher.Constraint("Horizontal", 12, 3, 14, 3),
    Sketcher.Constraint("Horizontal", 13, 3, 15, 3),
    Sketcher.Constraint("Horizontal", 16, 3, 18, 3),
    Sketcher.Constraint("Horizontal", 17, 3, 19, 3),
    Sketcher.Constraint("Horizontal", 18, 3, 20, 3),
    Sketcher.Constraint("Horizontal", 19, 3, 21, 3),
    Sketcher.Constraint("Horizontal", 20, 3, 22, 3),
    Sketcher.Constraint("Horizontal", 21, 3, 23, 3),
    Sketcher.Constraint("Horizontal", 22, 3, 24, 3),
    Sketcher.Constraint("Horizontal", 23, 3, 25, 3),
    Sketcher.Constraint("Horizontal", 24, 3, 26, 3),
    Sketcher.Constraint("Horizontal", 25, 3, 27, 3),
    Sketcher.Constraint("Horizontal", 26, 3, 28, 3),
    Sketcher.Constraint("Horizontal", 27, 3, 29, 3),
    Sketcher.Constraint("Horizontal", 28, 3, 30, 3),
    Sketcher.Constraint("Horizontal", 29, 3, 31, 3),
    Sketcher.Constraint("Vertical", 0, 3, 1, 3),
    Sketcher.Constraint("Vertical", 2, 3, 3, 3),
    Sketcher.Constraint("Vertical", 4, 3, 5, 3),
    Sketcher.Constraint("Vertical", 6, 3, 7, 3),
    Sketcher.Constraint("Vertical", 8, 3, 9, 3),
    Sketcher.Constraint("Vertical", 10, 3, 11, 3),
    Sketcher.Constraint("Vertical", 12, 3, 13, 3),
    Sketcher.Constraint("Vertical", 14, 3, 15, 3),
    Sketcher.Constraint("Vertical", 1, 3, 16, 3),
    Sketcher.Constraint("Vertical", 16, 3, 17, 3),
    Sketcher.Constraint("Vertical", 3, 3, 18, 3),
    Sketcher.Constraint("Vertical", 18, 3, 19, 3),
    Sketcher.Constraint("Vertical", 5, 3, 20, 3),
    Sketcher.Constraint("Vertical", 20, 3, 21, 3),
    Sketcher.Constraint("Vertical", 7, 3, 22, 3),
    Sketcher.Constraint("Vertical", 22, 3, 23, 3),
    Sketcher.Constraint("Vertical", 9, 3, 24, 3),
    Sketcher.Constraint("Vertical", 24, 3, 25, 3),
    Sketcher.Constraint("Vertical", 11, 3, 26, 3),
    Sketcher.Constraint("Vertical", 26, 3, 27, 3),
    Sketcher.Constraint("Vertical", 13, 3, 28, 3),
    Sketcher.Constraint("Vertical", 28, 3, 29, 3),
    Sketcher.Constraint("Vertical", 15, 3, 30, 3),
    Sketcher.Constraint("Vertical", 30, 3, 31, 3),
    Sketcher.Constraint("Diameter", 0, Q("0.375 in")),
    Sketcher.Constraint("DistanceY", 1, 3, 0, 3, Q("1 in")),
    Sketcher.Constraint("DistanceX", 0, 3, 2, 3, Q("1 in")),
    Sketcher.Constraint("DistanceX", 2, 3, 4, 3, Q("1 in")),
    Sketcher.Constraint("DistanceX", 4, 3, 6, 3, Q("1 in")),
    Sketcher.Constraint("DistanceX", 6, 3, 8, 3, Q("1 in")),
    Sketcher.Constraint("DistanceX", 8, 3, 10, 3, Q("1 in")),
    Sketcher.Constraint("DistanceX", 10, 3, 12, 3, Q("1 in")),
    Sketcher.Constraint("DistanceX", 12, 3, 14, 3, Q("1 in")),
    Sketcher.Constraint("DistanceY", 16, 3, 1, 3, Q("6 in")),
    Sketcher.Constraint("DistanceY", 16, 3, 17, 3, Q("1 in")),
    Sketcher.Constraint("DistanceY", 0, 3, -1, 1, 392.334861),
    Sketcher.Constraint("DistanceX", 0, 3, -1, 1, 401.848567),
])
pocket3 = doc.addObject("PartDesign::Pocket", "Pocket002")
body3.addObject(pocket3)
pocket3.Profile = sketch6
pocket3.Length = Q("1.75 in")

sketch7 = doc.addObject("Sketcher::SketchObject", "Sketch006")
body3.addObject(sketch7)
sketch7.AttachmentSupport = (doc.getObject("XY_Plane002"), [""])
sketch7.MapMode = "FlatFace"
sketch7.AttachmentOffset = App.Placement(App.Vector(0, 0, 2 * 25.4), App.Rotation())
sketch7.addGeometry([
    Part.Circle(App.Vector(-401.848567, -392.334861, 0), App.Vector(0, 0, 1), 7.9375),
    Part.Circle(App.Vector(-401.848567, -417.734861, 0), App.Vector(0, 0, 1), 7.9375),
    Part.Circle(App.Vector(-376.448567, -392.334861, 0), App.Vector(0, 0, 1), 7.9375),
    Part.Circle(App.Vector(-376.448567, -417.734861, 0), App.Vector(0, 0, 1), 7.9375),
    Part.Circle(App.Vector(-351.048567, -392.334861, 0), App.Vector(0, 0, 1), 7.9375),
    Part.Circle(App.Vector(-351.048567, -417.734861, 0), App.Vector(0, 0, 1), 7.9375),
    Part.Circle(App.Vector(-325.648567, -392.334861, 0), App.Vector(0, 0, 1), 7.9375),
    Part.Circle(App.Vector(-325.648567, -417.734861, 0), App.Vector(0, 0, 1), 7.9375),
    Part.Circle(App.Vector(-300.248567, -392.334861, 0), App.Vector(0, 0, 1), 7.9375),
    Part.Circle(App.Vector(-300.248567, -417.734861, 0), App.Vector(0, 0, 1), 7.9375),
    Part.Circle(App.Vector(-274.848567, -392.334861, 0), App.Vector(0, 0, 1), 7.9375),
    Part.Circle(App.Vector(-274.848567, -417.734861, 0), App.Vector(0, 0, 1), 7.9375),
    Part.Circle(App.Vector(-249.448567, -392.334861, 0), App.Vector(0, 0, 1), 7.9375),
    Part.Circle(App.Vector(-249.448567, -417.734861, 0), App.Vector(0, 0, 1), 7.9375),
    Part.Circle(App.Vector(-224.048567, -392.334861, 0), App.Vector(0, 0, 1), 7.9375),
    Part.Circle(App.Vector(-224.048567, -417.734861, 0), App.Vector(0, 0, 1), 7.9375),
    Part.Circle(App.Vector(-401.848567, -570.134861, 0), App.Vector(0, 0, 1), 7.9375),
    Part.Circle(App.Vector(-401.848567, -544.734861, 0), App.Vector(0, 0, 1), 7.9375),
    Part.Circle(App.Vector(-376.448567, -570.134861, 0), App.Vector(0, 0, 1), 7.9375),
    Part.Circle(App.Vector(-376.448567, -544.734861, 0), App.Vector(0, 0, 1), 7.9375),
    Part.Circle(App.Vector(-351.048567, -570.134861, 0), App.Vector(0, 0, 1), 7.9375),
    Part.Circle(App.Vector(-351.048567, -544.734861, 0), App.Vector(0, 0, 1), 7.9375),
    Part.Circle(App.Vector(-325.648567, -570.134861, 0), App.Vector(0, 0, 1), 7.9375),
    Part.Circle(App.Vector(-325.648567, -544.734861, 0), App.Vector(0, 0, 1), 7.9375),
    Part.Circle(App.Vector(-300.248567, -570.134861, 0), App.Vector(0, 0, 1), 7.9375),
    Part.Circle(App.Vector(-300.248567, -544.734861, 0), App.Vector(0, 0, 1), 7.9375),
    Part.Circle(App.Vector(-274.848567, -570.134861, 0), App.Vector(0, 0, 1), 7.9375),
    Part.Circle(App.Vector(-274.848567, -544.734861, 0), App.Vector(0, 0, 1), 7.9375),
    Part.Circle(App.Vector(-249.448567, -570.134861, 0), App.Vector(0, 0, 1), 7.9375),
    Part.Circle(App.Vector(-249.448567, -544.734861, 0), App.Vector(0, 0, 1), 7.9375),
    Part.Circle(App.Vector(-224.048567, -570.134861, 0), App.Vector(0, 0, 1), 7.9375),
    Part.Circle(App.Vector(-224.048567, -544.734861, 0), App.Vector(0, 0, 1), 7.9375),
], False)
sketch7.addConstraint([
    Sketcher.Constraint("Equal", 0, 1),
    Sketcher.Constraint("Equal", 1, 2),
    Sketcher.Constraint("Equal", 2, 3),
    Sketcher.Constraint("Equal", 3, 4),
    Sketcher.Constraint("Equal", 4, 5),
    Sketcher.Constraint("Equal", 5, 6),
    Sketcher.Constraint("Equal", 6, 7),
    Sketcher.Constraint("Equal", 7, 8),
    Sketcher.Constraint("Equal", 8, 9),
    Sketcher.Constraint("Equal", 9, 10),
    Sketcher.Constraint("Equal", 10, 11),
    Sketcher.Constraint("Equal", 11, 12),
    Sketcher.Constraint("Equal", 12, 13),
    Sketcher.Constraint("Equal", 13, 14),
    Sketcher.Constraint("Equal", 14, 15),
    Sketcher.Constraint("Equal", 15, 16),
    Sketcher.Constraint("Equal", 16, 17),
    Sketcher.Constraint("Equal", 17, 18),
    Sketcher.Constraint("Equal", 18, 19),
    Sketcher.Constraint("Equal", 19, 20),
    Sketcher.Constraint("Equal", 20, 21),
    Sketcher.Constraint("Equal", 21, 22),
    Sketcher.Constraint("Equal", 22, 23),
    Sketcher.Constraint("Equal", 23, 24),
    Sketcher.Constraint("Equal", 24, 25),
    Sketcher.Constraint("Equal", 25, 26),
    Sketcher.Constraint("Equal", 26, 27),
    Sketcher.Constraint("Equal", 27, 28),
    Sketcher.Constraint("Equal", 28, 29),
    Sketcher.Constraint("Equal", 29, 30),
    Sketcher.Constraint("Equal", 30, 31),
    Sketcher.Constraint("Horizontal", 0, 3, 2, 3),
    Sketcher.Constraint("Horizontal", 1, 3, 3, 3),
    Sketcher.Constraint("Horizontal", 2, 3, 4, 3),
    Sketcher.Constraint("Horizontal", 3, 3, 5, 3),
    Sketcher.Constraint("Horizontal", 4, 3, 6, 3),
    Sketcher.Constraint("Horizontal", 5, 3, 7, 3),
    Sketcher.Constraint("Horizontal", 6, 3, 8, 3),
    Sketcher.Constraint("Horizontal", 7, 3, 9, 3),
    Sketcher.Constraint("Horizontal", 8, 3, 10, 3),
    Sketcher.Constraint("Horizontal", 9, 3, 11, 3),
    Sketcher.Constraint("Horizontal", 10, 3, 12, 3),
    Sketcher.Constraint("Horizontal", 11, 3, 13, 3),
    Sketcher.Constraint("Horizontal", 12, 3, 14, 3),
    Sketcher.Constraint("Horizontal", 13, 3, 15, 3),
    Sketcher.Constraint("Horizontal", 16, 3, 18, 3),
    Sketcher.Constraint("Horizontal", 17, 3, 19, 3),
    Sketcher.Constraint("Horizontal", 18, 3, 20, 3),
    Sketcher.Constraint("Horizontal", 19, 3, 21, 3),
    Sketcher.Constraint("Horizontal", 20, 3, 22, 3),
    Sketcher.Constraint("Horizontal", 21, 3, 23, 3),
    Sketcher.Constraint("Horizontal", 22, 3, 24, 3),
    Sketcher.Constraint("Horizontal", 23, 3, 25, 3),
    Sketcher.Constraint("Horizontal", 24, 3, 26, 3),
    Sketcher.Constraint("Horizontal", 25, 3, 27, 3),
    Sketcher.Constraint("Horizontal", 26, 3, 28, 3),
    Sketcher.Constraint("Horizontal", 27, 3, 29, 3),
    Sketcher.Constraint("Horizontal", 28, 3, 30, 3),
    Sketcher.Constraint("Horizontal", 29, 3, 31, 3),
    Sketcher.Constraint("Vertical", 0, 3, 1, 3),
    Sketcher.Constraint("Vertical", 2, 3, 3, 3),
    Sketcher.Constraint("Vertical", 4, 3, 5, 3),
    Sketcher.Constraint("Vertical", 6, 3, 7, 3),
    Sketcher.Constraint("Vertical", 8, 3, 9, 3),
    Sketcher.Constraint("Vertical", 10, 3, 11, 3),
    Sketcher.Constraint("Vertical", 12, 3, 13, 3),
    Sketcher.Constraint("Vertical", 14, 3, 15, 3),
    Sketcher.Constraint("Vertical", 1, 3, 16, 3),
    Sketcher.Constraint("Vertical", 16, 3, 17, 3),
    Sketcher.Constraint("Vertical", 3, 3, 18, 3),
    Sketcher.Constraint("Vertical", 18, 3, 19, 3),
    Sketcher.Constraint("Vertical", 5, 3, 20, 3),
    Sketcher.Constraint("Vertical", 20, 3, 21, 3),
    Sketcher.Constraint("Vertical", 7, 3, 22, 3),
    Sketcher.Constraint("Vertical", 22, 3, 23, 3),
    Sketcher.Constraint("Vertical", 9, 3, 24, 3),
    Sketcher.Constraint("Vertical", 24, 3, 25, 3),
    Sketcher.Constraint("Vertical", 11, 3, 26, 3),
    Sketcher.Constraint("Vertical", 26, 3, 27, 3),
    Sketcher.Constraint("Vertical", 13, 3, 28, 3),
    Sketcher.Constraint("Vertical", 28, 3, 29, 3),
    Sketcher.Constraint("Vertical", 15, 3, 30, 3),
    Sketcher.Constraint("Vertical", 30, 3, 31, 3),
    Sketcher.Constraint("Diameter", 0, Q("0.625 in")),
    Sketcher.Constraint("DistanceY", 1, 3, 0, 3, Q("1 in")),
    Sketcher.Constraint("DistanceX", 0, 3, 2, 3, Q("1 in")),
    Sketcher.Constraint("DistanceX", 2, 3, 4, 3, Q("1 in")),
    Sketcher.Constraint("DistanceX", 4, 3, 6, 3, Q("1 in")),
    Sketcher.Constraint("DistanceX", 6, 3, 8, 3, Q("1 in")),
    Sketcher.Constraint("DistanceX", 8, 3, 10, 3, Q("1 in")),
    Sketcher.Constraint("DistanceX", 10, 3, 12, 3, Q("1 in")),
    Sketcher.Constraint("DistanceX", 12, 3, 14, 3, Q("1 in")),
    Sketcher.Constraint("DistanceY", 16, 3, 1, 3, Q("6 in")),
    Sketcher.Constraint("DistanceY", 16, 3, 17, 3, Q("1 in")),
    Sketcher.Constraint("DistanceY", 0, 3, -1, 1, 392.334861),
    Sketcher.Constraint("DistanceX", 0, 3, -1, 1, 401.848567),
])
pocket4 = doc.addObject("PartDesign::Pocket", "Pocket003")
body3.addObject(pocket4)
pocket4.Profile = sketch7
pocket4.Length = Q("0.0625 in")

doc.recompute()
